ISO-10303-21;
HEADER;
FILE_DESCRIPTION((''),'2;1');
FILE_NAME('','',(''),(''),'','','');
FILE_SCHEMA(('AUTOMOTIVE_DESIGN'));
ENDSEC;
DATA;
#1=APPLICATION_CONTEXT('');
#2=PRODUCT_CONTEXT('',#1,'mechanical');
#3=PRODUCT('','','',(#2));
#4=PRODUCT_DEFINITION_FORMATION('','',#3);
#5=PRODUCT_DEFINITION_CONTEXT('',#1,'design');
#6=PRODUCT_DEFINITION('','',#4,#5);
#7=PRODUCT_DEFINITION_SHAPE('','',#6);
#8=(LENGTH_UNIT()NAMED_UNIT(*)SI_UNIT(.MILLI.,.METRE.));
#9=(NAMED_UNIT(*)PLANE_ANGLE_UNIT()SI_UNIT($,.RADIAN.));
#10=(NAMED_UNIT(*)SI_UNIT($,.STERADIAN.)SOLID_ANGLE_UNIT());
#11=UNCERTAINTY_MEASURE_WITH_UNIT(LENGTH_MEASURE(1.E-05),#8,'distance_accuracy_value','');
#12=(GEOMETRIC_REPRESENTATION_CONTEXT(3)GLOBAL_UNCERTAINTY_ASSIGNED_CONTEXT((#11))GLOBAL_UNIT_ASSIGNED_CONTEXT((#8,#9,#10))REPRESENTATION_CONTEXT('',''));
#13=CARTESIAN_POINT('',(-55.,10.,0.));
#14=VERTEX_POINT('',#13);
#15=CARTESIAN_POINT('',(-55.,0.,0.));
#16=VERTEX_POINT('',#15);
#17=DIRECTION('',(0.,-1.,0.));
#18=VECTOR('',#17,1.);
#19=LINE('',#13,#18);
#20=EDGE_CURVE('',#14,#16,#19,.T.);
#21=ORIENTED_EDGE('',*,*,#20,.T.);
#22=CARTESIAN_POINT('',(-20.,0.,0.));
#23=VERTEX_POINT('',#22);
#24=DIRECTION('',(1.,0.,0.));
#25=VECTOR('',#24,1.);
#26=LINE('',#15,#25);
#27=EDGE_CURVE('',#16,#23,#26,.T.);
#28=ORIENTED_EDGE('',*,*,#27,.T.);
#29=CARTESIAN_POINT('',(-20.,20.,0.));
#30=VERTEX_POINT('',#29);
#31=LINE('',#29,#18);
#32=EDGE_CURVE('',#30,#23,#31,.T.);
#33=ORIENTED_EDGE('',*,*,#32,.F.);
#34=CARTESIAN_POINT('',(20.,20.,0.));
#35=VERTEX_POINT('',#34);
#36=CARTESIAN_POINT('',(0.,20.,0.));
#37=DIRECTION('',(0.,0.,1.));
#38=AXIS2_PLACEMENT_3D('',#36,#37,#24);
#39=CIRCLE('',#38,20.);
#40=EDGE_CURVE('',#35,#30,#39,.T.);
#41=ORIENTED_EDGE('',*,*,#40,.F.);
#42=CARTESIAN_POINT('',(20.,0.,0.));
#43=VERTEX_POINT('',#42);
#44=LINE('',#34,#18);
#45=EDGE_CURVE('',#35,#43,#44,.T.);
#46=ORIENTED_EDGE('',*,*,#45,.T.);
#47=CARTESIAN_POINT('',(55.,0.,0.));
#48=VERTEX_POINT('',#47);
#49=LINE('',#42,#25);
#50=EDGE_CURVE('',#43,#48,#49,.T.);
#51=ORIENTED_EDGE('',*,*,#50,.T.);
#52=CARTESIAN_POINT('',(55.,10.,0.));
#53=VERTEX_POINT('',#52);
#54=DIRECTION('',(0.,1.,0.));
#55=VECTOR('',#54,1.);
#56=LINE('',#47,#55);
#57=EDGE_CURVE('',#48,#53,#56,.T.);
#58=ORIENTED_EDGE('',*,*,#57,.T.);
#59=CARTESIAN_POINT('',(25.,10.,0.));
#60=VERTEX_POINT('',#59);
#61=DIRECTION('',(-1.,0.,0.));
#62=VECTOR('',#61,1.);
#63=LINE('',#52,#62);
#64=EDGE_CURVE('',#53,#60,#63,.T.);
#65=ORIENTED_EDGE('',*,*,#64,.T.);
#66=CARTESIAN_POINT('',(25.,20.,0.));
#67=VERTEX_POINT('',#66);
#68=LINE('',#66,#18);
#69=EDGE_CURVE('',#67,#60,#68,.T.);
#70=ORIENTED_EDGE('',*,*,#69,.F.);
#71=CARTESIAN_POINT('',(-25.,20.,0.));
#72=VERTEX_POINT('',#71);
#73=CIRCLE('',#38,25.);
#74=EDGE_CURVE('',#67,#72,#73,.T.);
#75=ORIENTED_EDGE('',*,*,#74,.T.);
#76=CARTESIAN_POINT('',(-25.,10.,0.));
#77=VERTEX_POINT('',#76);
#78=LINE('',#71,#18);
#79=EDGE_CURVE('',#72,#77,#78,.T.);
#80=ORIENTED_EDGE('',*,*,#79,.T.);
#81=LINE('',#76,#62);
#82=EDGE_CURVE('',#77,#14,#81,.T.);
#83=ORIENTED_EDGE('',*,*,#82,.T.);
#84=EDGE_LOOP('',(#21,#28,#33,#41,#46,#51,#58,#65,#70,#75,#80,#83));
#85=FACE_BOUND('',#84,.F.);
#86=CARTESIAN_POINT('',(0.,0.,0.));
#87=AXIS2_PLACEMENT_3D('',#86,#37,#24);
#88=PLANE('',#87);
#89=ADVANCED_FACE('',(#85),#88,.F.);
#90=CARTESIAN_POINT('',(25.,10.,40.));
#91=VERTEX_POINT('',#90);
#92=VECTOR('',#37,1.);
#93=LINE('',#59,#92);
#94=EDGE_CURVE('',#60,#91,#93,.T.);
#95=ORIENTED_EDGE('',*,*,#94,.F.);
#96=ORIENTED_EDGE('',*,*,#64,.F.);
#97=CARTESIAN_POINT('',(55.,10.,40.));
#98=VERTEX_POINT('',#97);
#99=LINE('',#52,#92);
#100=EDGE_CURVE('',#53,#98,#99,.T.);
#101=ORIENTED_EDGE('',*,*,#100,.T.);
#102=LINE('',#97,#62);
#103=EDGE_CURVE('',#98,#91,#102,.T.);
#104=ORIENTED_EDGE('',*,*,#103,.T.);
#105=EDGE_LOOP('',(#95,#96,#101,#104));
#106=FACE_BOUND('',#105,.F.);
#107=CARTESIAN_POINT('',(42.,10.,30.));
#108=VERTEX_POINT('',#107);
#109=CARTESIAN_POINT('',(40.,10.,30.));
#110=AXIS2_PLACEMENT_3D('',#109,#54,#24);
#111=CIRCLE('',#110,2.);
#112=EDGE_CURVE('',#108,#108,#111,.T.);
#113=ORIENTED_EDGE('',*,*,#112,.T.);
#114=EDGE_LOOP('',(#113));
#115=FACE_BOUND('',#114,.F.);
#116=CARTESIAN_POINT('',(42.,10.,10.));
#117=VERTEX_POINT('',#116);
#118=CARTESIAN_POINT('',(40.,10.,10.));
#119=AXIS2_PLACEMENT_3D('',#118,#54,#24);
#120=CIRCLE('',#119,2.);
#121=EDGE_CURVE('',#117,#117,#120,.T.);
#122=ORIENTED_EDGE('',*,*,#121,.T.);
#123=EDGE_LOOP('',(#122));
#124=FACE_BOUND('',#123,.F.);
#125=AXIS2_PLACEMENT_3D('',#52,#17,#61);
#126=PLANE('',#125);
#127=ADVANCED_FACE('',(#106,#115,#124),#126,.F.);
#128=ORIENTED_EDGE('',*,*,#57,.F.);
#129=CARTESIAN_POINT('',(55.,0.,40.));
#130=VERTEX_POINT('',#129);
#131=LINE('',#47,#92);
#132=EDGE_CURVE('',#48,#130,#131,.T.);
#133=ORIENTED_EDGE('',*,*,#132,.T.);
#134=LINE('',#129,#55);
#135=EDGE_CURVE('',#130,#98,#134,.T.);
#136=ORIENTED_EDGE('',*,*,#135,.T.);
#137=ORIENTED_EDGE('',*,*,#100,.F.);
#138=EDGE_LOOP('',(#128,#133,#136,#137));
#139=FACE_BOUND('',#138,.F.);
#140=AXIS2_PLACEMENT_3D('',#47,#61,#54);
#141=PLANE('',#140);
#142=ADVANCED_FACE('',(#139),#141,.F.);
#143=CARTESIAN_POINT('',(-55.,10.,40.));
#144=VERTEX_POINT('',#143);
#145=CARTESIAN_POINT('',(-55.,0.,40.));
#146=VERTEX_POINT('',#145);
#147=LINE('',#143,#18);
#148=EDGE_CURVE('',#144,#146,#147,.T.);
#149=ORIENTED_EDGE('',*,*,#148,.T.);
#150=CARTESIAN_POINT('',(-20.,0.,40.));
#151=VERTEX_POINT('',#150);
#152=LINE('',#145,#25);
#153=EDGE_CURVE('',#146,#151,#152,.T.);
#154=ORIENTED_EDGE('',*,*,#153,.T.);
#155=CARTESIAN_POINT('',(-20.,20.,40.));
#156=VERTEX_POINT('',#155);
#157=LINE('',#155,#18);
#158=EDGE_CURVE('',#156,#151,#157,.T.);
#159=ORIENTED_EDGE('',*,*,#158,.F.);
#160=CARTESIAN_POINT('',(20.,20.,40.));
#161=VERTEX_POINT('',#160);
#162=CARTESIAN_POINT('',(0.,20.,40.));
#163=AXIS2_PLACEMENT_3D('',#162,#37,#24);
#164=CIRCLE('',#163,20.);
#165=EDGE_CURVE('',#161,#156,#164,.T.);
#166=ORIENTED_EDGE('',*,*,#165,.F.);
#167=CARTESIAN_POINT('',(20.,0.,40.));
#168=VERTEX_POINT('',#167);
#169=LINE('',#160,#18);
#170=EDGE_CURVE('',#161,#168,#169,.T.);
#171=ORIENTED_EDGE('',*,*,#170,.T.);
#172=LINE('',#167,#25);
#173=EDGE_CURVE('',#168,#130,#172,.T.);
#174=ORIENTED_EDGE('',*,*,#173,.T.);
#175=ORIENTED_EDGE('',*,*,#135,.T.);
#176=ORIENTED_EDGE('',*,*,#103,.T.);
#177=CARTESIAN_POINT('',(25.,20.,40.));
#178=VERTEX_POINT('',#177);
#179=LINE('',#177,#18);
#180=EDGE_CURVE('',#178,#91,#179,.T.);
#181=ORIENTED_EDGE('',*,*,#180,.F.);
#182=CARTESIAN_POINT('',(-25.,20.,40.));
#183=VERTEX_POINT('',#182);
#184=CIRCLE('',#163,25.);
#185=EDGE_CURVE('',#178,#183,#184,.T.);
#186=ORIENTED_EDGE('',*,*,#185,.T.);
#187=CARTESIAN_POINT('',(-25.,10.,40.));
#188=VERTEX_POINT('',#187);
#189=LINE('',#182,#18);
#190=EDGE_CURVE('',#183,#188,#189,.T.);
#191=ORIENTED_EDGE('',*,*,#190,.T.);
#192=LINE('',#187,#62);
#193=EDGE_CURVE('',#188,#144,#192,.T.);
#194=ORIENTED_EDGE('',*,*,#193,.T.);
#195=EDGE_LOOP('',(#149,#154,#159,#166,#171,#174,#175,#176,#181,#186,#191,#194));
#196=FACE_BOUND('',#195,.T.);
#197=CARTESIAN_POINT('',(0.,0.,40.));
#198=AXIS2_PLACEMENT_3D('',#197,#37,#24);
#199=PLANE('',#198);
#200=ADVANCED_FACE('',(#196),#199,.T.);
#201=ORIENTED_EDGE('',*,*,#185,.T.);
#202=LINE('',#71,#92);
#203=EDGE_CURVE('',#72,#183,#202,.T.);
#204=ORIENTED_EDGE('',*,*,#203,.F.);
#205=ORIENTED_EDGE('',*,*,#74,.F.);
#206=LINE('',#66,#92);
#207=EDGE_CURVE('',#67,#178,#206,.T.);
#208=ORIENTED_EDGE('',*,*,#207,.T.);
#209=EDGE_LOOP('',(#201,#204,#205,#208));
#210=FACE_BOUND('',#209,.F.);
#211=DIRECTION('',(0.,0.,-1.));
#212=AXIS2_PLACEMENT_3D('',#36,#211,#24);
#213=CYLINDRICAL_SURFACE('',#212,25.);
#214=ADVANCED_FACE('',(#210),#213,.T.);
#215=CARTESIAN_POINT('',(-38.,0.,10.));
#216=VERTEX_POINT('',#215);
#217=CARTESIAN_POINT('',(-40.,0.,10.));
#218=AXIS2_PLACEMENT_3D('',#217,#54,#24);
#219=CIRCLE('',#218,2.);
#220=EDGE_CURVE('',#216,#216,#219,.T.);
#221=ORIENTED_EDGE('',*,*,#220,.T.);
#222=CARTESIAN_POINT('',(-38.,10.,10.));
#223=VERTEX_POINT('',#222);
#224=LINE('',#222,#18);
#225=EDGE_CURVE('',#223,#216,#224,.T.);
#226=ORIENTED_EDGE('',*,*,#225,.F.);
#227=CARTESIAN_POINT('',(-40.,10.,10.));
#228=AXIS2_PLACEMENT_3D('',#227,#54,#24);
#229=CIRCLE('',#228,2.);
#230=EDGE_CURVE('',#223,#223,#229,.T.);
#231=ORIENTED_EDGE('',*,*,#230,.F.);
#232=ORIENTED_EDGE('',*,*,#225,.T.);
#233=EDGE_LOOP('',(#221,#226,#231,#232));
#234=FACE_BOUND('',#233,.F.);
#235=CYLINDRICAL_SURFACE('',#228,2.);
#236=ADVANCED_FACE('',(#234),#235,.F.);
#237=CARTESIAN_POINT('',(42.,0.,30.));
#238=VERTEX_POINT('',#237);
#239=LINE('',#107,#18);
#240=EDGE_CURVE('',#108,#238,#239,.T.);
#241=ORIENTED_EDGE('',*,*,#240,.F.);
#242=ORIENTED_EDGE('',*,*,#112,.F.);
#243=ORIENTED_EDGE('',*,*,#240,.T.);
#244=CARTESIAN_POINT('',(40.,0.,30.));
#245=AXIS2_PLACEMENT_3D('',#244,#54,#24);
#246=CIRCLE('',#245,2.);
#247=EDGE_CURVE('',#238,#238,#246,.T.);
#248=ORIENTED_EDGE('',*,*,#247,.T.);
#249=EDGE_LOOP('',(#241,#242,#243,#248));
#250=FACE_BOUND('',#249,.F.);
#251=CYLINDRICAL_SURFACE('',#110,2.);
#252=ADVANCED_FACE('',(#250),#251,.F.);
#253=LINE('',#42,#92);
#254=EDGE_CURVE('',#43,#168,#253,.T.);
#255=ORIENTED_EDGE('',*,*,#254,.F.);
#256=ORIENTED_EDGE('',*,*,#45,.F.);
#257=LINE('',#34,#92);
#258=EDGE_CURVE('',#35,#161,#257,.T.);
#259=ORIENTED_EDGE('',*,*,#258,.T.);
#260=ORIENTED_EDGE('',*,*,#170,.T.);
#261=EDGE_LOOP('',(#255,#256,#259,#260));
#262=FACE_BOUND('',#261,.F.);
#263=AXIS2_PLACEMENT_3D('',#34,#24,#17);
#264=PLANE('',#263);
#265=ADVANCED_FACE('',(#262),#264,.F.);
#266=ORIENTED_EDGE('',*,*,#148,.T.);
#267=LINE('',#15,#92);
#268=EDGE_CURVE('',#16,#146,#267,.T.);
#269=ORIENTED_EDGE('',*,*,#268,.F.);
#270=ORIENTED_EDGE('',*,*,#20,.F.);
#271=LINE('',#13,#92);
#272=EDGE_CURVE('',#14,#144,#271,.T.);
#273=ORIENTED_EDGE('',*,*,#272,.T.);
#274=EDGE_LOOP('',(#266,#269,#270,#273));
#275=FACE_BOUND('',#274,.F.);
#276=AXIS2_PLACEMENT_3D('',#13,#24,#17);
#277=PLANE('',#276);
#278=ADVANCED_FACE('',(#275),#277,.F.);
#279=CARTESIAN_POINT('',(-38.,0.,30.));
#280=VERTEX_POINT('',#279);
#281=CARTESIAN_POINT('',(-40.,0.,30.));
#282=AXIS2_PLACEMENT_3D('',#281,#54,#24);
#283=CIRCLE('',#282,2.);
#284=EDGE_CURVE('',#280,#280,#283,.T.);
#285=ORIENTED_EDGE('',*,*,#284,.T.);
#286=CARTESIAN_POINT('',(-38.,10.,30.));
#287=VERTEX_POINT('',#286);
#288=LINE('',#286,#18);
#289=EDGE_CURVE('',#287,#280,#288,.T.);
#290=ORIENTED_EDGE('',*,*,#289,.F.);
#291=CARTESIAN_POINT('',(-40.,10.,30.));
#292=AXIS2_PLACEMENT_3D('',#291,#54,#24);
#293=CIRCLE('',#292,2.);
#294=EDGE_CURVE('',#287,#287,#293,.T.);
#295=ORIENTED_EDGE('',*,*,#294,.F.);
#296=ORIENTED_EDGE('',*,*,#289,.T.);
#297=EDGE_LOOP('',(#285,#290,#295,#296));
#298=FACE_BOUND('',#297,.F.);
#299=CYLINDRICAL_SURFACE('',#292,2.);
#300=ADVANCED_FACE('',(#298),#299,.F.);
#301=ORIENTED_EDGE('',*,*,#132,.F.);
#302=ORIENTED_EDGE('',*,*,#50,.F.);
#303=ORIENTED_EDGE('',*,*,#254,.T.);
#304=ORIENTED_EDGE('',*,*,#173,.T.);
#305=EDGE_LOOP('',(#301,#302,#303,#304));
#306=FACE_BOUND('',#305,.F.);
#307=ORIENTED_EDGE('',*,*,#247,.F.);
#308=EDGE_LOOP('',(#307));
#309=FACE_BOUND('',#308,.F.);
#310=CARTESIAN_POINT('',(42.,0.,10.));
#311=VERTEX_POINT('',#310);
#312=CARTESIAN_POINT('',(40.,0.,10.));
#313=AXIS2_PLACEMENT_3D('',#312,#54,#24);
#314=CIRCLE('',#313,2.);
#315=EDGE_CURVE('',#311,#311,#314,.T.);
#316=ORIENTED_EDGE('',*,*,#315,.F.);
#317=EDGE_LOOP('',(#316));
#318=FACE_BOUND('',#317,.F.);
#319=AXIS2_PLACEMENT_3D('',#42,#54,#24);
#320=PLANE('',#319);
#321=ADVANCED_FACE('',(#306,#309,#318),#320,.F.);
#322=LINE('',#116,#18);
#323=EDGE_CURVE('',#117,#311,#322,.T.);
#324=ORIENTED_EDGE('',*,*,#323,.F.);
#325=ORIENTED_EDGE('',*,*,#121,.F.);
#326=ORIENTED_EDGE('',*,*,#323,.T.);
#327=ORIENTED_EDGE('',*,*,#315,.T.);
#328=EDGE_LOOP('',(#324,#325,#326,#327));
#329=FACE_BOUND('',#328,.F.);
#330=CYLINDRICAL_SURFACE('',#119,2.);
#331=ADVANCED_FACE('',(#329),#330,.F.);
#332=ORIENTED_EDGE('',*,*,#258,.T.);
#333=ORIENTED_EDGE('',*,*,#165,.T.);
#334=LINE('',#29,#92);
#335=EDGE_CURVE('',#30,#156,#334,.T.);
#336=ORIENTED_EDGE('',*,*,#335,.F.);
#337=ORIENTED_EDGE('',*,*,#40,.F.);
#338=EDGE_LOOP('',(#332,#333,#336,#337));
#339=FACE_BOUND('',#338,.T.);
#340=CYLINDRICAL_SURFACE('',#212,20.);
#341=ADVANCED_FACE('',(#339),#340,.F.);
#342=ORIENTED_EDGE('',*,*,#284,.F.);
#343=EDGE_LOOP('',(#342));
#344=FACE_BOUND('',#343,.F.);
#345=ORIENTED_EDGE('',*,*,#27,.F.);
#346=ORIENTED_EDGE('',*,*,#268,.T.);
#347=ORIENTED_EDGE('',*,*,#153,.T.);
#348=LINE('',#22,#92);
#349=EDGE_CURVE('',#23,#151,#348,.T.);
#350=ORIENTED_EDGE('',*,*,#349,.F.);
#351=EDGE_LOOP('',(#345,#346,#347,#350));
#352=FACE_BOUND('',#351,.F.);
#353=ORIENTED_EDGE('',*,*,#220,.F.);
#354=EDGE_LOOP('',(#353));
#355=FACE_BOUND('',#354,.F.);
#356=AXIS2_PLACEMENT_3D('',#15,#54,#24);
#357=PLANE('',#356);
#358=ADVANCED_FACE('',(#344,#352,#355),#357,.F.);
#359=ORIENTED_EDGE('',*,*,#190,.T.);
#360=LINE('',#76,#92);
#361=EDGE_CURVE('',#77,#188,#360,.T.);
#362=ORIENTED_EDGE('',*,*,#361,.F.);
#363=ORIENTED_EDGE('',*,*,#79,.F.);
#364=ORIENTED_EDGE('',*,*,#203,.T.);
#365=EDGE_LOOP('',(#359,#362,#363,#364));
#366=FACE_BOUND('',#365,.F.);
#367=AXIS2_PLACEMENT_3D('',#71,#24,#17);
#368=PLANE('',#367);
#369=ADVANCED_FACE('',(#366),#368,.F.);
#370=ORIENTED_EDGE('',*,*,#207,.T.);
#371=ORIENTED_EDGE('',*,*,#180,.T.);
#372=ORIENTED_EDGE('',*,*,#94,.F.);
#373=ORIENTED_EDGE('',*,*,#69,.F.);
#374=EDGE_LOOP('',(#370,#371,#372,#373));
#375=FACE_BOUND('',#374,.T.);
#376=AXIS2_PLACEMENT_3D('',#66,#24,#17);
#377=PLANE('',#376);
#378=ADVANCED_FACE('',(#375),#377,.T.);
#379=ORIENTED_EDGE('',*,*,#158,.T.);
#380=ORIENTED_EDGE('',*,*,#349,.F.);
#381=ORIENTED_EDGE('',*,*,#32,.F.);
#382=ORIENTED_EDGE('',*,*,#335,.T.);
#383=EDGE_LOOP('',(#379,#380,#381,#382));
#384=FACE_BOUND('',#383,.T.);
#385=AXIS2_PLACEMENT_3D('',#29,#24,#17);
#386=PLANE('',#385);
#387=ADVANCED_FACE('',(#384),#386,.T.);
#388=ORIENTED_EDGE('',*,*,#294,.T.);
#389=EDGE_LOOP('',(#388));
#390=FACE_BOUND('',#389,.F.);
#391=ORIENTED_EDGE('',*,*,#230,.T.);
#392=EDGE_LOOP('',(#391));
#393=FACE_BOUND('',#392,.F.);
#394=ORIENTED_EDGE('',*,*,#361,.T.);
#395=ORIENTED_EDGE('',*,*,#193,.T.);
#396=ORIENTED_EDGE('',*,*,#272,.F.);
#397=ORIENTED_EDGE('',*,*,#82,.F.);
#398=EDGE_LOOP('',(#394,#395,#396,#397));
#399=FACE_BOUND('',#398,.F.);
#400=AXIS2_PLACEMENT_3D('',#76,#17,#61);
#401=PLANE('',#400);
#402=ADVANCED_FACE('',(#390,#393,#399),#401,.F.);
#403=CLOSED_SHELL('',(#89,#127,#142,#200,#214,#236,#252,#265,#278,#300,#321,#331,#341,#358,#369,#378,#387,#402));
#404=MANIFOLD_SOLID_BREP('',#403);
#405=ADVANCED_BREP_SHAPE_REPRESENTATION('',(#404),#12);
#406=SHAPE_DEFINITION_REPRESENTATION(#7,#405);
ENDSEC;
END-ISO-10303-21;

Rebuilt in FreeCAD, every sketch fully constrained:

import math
import FreeCAD as App
import Part
import Sketcher

V = App.Vector
Q = App.Units.Quantity

doc = App.newDocument("Part")
body = doc.addObject("PartDesign::Body", "Body")

# Sketch on XY plane
sketch1 = body.newObject("Sketcher::SketchObject", "Sketch")
sketch1.AttachmentSupport = (doc.getObject("XY_Plane"), [""])
sketch1.MapMode = "FlatFace"
sketch1.addGeometry(Part.ArcOfCircle(Part.Circle(V(0, 20, 0), V(0, 0, 1), 20), math.radians(0), math.radians(180)), False)
sketch1.addGeometry(Part.LineSegment(V(20, 20, 0), V(20, 0, 0)), False)
sketch1.addGeometry(Part.LineSegment(V(20, 0, 0), V(55, 0, 0)), False)
sketch1.addGeometry(Part.LineSegment(V(55, 0, 0), V(55, 10, 0)), False)
sketch1.addGeometry(Part.LineSegment(V(55, 10, 0), V(25, 10, 0)), False)
sketch1.addGeometry(Part.LineSegment(V(25, 10, 0), V(25, 20, 0)), False)
sketch1.addGeometry(Part.ArcOfCircle(Part.Circle(V(0, 20, 0), V(0, 0, 1), 25), math.radians(0), math.radians(180)), False)
sketch1.addGeometry(Part.LineSegment(V(-25, 20, 0), V(-25, 10, 0)), False)
sketch1.addGeometry(Part.LineSegment(V(-25, 10, 0), V(-55, 10, 0)), False)
sketch1.addGeometry(Part.LineSegment(V(-55, 10, 0), V(-55, 0, 0)), False)
sketch1.addGeometry(Part.LineSegment(V(-55, 0, 0), V(-20, 0, 0)), False)
sketch1.addGeometry(Part.LineSegment(V(-20, 0, 0), V(-20, 20, 0)), False)
sketch1.addConstraint(Sketcher.Constraint("Tangent", 0, 1, 1, 1))
sketch1.addConstraint(Sketcher.Constraint("Coincident", 1, 2, 2, 1))
sketch1.addConstraint(Sketcher.Constraint("Coincident", 2, 2, 3, 1))
sketch1.addConstraint(Sketcher.Constraint("Coincident", 3, 2, 4, 1))
sketch1.addConstraint(Sketcher.Constraint("Coincident", 4, 2, 5, 1))
sketch1.addConstraint(Sketcher.Constraint("Tangent", 5, 2, 6, 1))
sketch1.addConstraint(Sketcher.Constraint("Tangent", 6, 2, 7, 1))
sketch1.addConstraint(Sketcher.Constraint("Coincident", 7, 2, 8, 1))
sketch1.addConstraint(Sketcher.Constraint("Coincident", 8, 2, 9, 1))
sketch1.addConstraint(Sketcher.Constraint("Coincident", 9, 2, 10, 1))
sketch1.addConstraint(Sketcher.Constraint("Coincident", 10, 2, 11, 1))
sketch1.addConstraint(Sketcher.Constraint("Tangent", 11, 2, 0, 2))
sketch1.addConstraint(Sketcher.Constraint("Vertical", 1))
sketch1.addConstraint(Sketcher.Constraint("Horizontal", 2))
sketch1.addConstraint(Sketcher.Constraint("Vertical", 3))
sketch1.addConstraint(Sketcher.Constraint("Horizontal", 4))
sketch1.addConstraint(Sketcher.Constraint("Vertical", 5))
sketch1.addConstraint(Sketcher.Constraint("Vertical", 7))
sketch1.addConstraint(Sketcher.Constraint("Horizontal", 8))
sketch1.addConstraint(Sketcher.Constraint("Vertical", 9))
sketch1.addConstraint(Sketcher.Constraint("Horizontal", 10))
sketch1.addConstraint(Sketcher.Constraint("Vertical", 11))
sketch1.addConstraint(Sketcher.Constraint("Coincident", 6, 3, 0, 3))
sketch1.addConstraint(Sketcher.Constraint("Symmetric", 2, 2, 9, 2, -1, 1))
sketch1.addConstraint(Sketcher.Constraint("Symmetric", 4, 2, 7, 2, -2))
sketch1.addConstraint(Sketcher.Constraint("PointOnObject", 1, 2, -1))
sketch1.addConstraint(Sketcher.Constraint("Equal", 3, 5))
sketch1.addConstraint(Sketcher.Constraint("DistanceX", 4, 2, 4, 1, Q("30 mm")))
sketch1.addConstraint(Sketcher.Constraint("DistanceY", 3, 1, 3, 2, Q("10 mm")))
sketch1.addConstraint(Sketcher.Constraint("DistanceX", -1, 1, 2, 2, Q("55 mm")))
sketch1.addConstraint(Sketcher.Constraint("Radius", 0, Q("20 mm")))
pad1 = body.newObject("PartDesign::Pad", "Pad")
pad1.Profile = sketch1
pad1.Length = 40

# Sketch on XZ plane
sketch2 = body.newObject("Sketcher::SketchObject", "Sketch001")
sketch2.AttachmentSupport = (doc.getObject("XZ_Plane"), [""])
sketch2.MapMode = "FlatFace"
sketch2.AttachmentOffset = App.Placement(V(0, 0, -10), App.Rotation())
sketch2.addGeometry(Part.Circle(V(40, 10, 0), V(0, 0, 1), 2), False)
sketch2.addGeometry(Part.Circle(V(40, 30, 0), V(0, 0, 1), 2), False)
sketch2.addGeometry(Part.Circle(V(-40, 10, 0), V(0, 0, 1), 2), False)
sketch2.addGeometry(Part.Circle(V(-40, 30, 0), V(0, 0, 1), 2), False)
sketch2.addConstraint(Sketcher.Constraint("Equal", 0, 1))
sketch2.addConstraint(Sketcher.Constraint("Equal", 1, 2))
sketch2.addConstraint(Sketcher.Constraint("Equal", 2, 3))
sketch2.addConstraint(Sketcher.Constraint("Symmetric", 0, 3, 2, 3, -2))
sketch2.addConstraint(Sketcher.Constraint("Symmetric", 1, 3, 3, 3, -2))
sketch2.addConstraint(Sketcher.Constraint("Vertical", 0, 3, 1, 3))
sketch2.addConstraint(Sketcher.Constraint("Diameter", 0, Q("4 mm")))
sketch2.addConstraint(Sketcher.Constraint("DistanceX", -1, 1, 0, 3, Q("40 mm")))
sketch2.addConstraint(Sketcher.Constraint("DistanceY", -1, 1, 0, 3, Q("10 mm")))
sketch2.addConstraint(Sketcher.Constraint("DistanceY", -1, 1, 1, 3, Q("30 mm")))
pocket1 = body.newObject("PartDesign::Pocket", "Pocket")
pocket1.Profile = sketch2
pocket1.Length = 10
pocket1.Reversed = True

doc.recompute()
